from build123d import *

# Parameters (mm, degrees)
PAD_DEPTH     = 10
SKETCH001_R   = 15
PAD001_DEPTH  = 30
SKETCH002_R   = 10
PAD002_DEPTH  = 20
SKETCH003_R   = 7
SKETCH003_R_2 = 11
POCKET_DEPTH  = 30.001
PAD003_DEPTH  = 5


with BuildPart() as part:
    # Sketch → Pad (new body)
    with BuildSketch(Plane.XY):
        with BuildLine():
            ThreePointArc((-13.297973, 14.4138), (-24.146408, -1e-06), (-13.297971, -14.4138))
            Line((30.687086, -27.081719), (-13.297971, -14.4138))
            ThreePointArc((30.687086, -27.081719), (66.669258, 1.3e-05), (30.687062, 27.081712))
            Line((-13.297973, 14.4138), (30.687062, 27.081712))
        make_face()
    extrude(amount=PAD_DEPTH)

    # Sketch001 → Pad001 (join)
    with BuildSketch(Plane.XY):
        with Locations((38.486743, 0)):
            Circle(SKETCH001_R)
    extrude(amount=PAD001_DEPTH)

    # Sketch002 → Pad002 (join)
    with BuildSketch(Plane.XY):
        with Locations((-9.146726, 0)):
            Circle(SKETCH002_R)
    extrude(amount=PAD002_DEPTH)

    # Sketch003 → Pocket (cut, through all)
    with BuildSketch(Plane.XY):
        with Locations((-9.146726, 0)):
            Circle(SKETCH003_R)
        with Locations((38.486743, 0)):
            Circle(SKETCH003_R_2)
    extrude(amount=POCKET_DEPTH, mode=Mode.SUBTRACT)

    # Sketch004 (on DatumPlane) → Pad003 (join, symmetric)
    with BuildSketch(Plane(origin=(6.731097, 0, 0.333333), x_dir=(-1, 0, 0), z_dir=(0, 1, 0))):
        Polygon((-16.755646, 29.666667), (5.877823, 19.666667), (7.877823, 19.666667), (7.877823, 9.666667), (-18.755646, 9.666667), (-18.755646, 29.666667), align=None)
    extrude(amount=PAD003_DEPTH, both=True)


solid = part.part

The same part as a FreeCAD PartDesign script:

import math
import FreeCAD as App
import Part
import Sketcher
from FreeCAD import Vector
Q = App.Units.Quantity


def add_polygon(sketch, points):
    """Adds a closed chain of lines whose ends are joined by coincident constraints."""
    first, n = sketch.GeometryCount, len(points)
    for a, b in zip(points, points[1:] + points[:1]):
        sketch.addGeometry(Part.LineSegment(App.Vector(*a, 0), App.Vector(*b, 0)), False)
    for i in range(n):
        sketch.addConstraint(Sketcher.Constraint("Coincident", first + i, 2, first + (i + 1) % n, 1))

doc = App.newDocument("Part")
params = doc.addObject("Spreadsheet::Sheet", "Params")
for row, (alias, value) in enumerate([
    ("pad1_length", "10 mm"),
    ("sketch2_diameter", "30 mm"),
    ("pad2_length", "30 mm"),
    ("sketch3_diameter", "20 mm"),
    ("pad3_length", "20 mm"),
    ("sketch4_diameter", "14 mm"),
    ("sketch4_diameter2", "22 mm"),
    ("sketch5_width", "2 mm"),
    ("sketch5_height", "20 mm"),
    ("sketch5_height2", "10 mm"),
    ("pad4_length", "10 mm"),
], start=1):
    params.set(f"A{row}", alias)
    params.set(f"B{row}", "=" + value)
    params.setAlias(f"B{row}", alias)

body = doc.addObject("PartDesign::Body", "Body")

sketch1 = body.newObject("Sketcher::SketchObject", "Sketch")
sketch1.AttachmentSupport = (doc.getObject("XY_Plane"), [""])
sketch1.MapMode = "FlatFace"
sketch1.addGeometry([
    Part.ArcOfCircle(Part.Circle(Vector(-9.146725, 0, 0), Vector(0, 0, 1), 14.999683), math.radians(106.06667), math.radians(253.933338)),
    Part.LineSegment(Vector(-13.297971, -14.4138, 0), Vector(30.687086, -27.081719, 0)),
    Part.ArcOfCircle(Part.Circle(Vector(38.486743, 0, 0), Vector(0, 0, 1), 28.182515), math.radians(-106.066639), math.radians(106.06669)),
    Part.LineSegment(Vector(30.687062, 27.081712, 0), Vector(-13.297973, 14.4138, 0)),
], False)
sketch1.addConstraint([
    Sketcher.Constraint("Coincident", 0, 2, 1, 1),
    Sketcher.Constraint("Coincident", 1, 2, 2, 1),
    Sketcher.Constraint("Coincident", 2, 2, 3, 1),
    Sketcher.Constraint("Coincident", 3, 2, 0, 1),
    Sketcher.Constraint("PointOnObject", 0, 3, -1),
    Sketcher.Constraint("PointOnObject", 2, 3, -1),
    Sketcher.Constraint("Radius", 0, Q("14.999683 mm")),
    Sketcher.Constraint("Radius", 2, Q("28.182515 mm")),
    Sketcher.Constraint("DistanceY", 0, 2, -1, 1, Q("14.4138 mm")),
    Sketcher.Constraint("DistanceY", -1, 1, 3, 2, Q("14.4138 mm")),
    Sketcher.Constraint("Distance", 3, Q("45.77291 mm")),
    Sketcher.Constraint("DistanceX", 0, 2, -1, 1, Q("13.297971 mm")),
    Sketcher.Constraint("DistanceY", 1, 2, -1, 1, Q("27.081719 mm")),
    Sketcher.Constraint("DistanceY", -1, 1, 2, 2, Q("27.081712 mm")),
])
pad1 = body.newObject("PartDesign::Pad", "Pad")
pad1.Profile = sketch1
pad1.setExpression("Length", "Params.pad1_length")

sketch2 = body.newObject("Sketcher::SketchObject", "Sketch001")
sketch2.AttachmentSupport = (doc.getObject("XY_Plane"), [""])
sketch2.MapMode = "FlatFace"
sketch2.addGeometry(Part.Circle(Vector(38, 0, 0), Vector(0, 0, 1), 15), False)
sketch2.addConstraint([
    Sketcher.Constraint("PointOnObject", 0, 3, -1),
    Sketcher.Constraint("Diameter", 0, Q("30 mm")),
    Sketcher.Constraint("DistanceX", -1, 1, 0, 3, Q("38.486743 mm")),
])
sketch2.setExpression("Constraints[1]", "Params.sketch2_diameter")
pad2 = body.newObject("PartDesign::Pad", "Pad001")
pad2.Profile = sketch2
pad2.setExpression("Length", "Params.pad2_length")

sketch3 = body.newObject("Sketcher::SketchObject", "Sketch002")
sketch3.AttachmentSupport = (doc.getObject("XY_Plane"), [""])
sketch3.MapMode = "FlatFace"
sketch3.addGeometry(Part.Circle(Vector(-9, 0, 0), Vector(0, 0, 1), 10), False)
sketch3.addConstraint([
    Sketcher.Constraint("PointOnObject", 0, 3, -1),
    Sketcher.Constraint("Diameter", 0, Q("20 mm")),
    Sketcher.Constraint("DistanceX", 0, 3, -1, 1, Q("9.146726 mm")),
])
sketch3.setExpression("Constraints[1]", "Params.sketch3_diameter")
pad3 = body.newObject("PartDesign::Pad", "Pad002")
pad3.Profile = sketch3
pad3.setExpression("Length", "Params.pad3_length")

sketch4 = body.newObject("Sketcher::SketchObject", "Sketch003")
sketch4.AttachmentSupport = (doc.getObject("XY_Plane"), [""])
sketch4.MapMode = "FlatFace"
sketch4.addGeometry([
    Part.Circle(Vector(-9, 0, 0), Vector(0, 0, 1), 7),
    Part.Circle(Vector(38, 0, 0), Vector(0, 0, 1), 11),
], False)
sketch4.addConstraint([
    Sketcher.Constraint("PointOnObject", 0, 3, -1),
    Sketcher.Constraint("PointOnObject", 1, 3, -1),
    Sketcher.Constraint("Diameter", 0, Q("14 mm")),
    Sketcher.Constraint("Diameter", 1, Q("22 mm")),
    Sketcher.Constraint("DistanceX", 0, 3, 1, 3, Q("47.633469 mm")),
    Sketcher.Constraint("DistanceX", 0, 3, -1, 1, Q("9.146726 mm")),
])
sketch4.setExpression("Constraints[2]", "Params.sketch4_diameter")
sketch4.setExpression("Constraints[3]", "Params.sketch4_diameter2")
pocket1 = body.newObject("PartDesign::Pocket", "Pocket")
pocket1.Profile = sketch4
pocket1.Type = "ThroughAll"
pocket1.Reversed = True

sketch5 = body.newObject("Sketcher::SketchObject", "Sketch004")
sketch5.AttachmentSupport = (doc.getObject("XZ_Plane"), [""])
sketch5.MapMode = "FlatFace"
add_polygon(sketch5, [(0.9, 20), (23.5, 30), (25.5, 30), (25.5, 10), (-1.1, 10), (-1.1, 20)])
sketch5.addConstraint([
    Sketcher.Constraint("Horizontal", 1),
    Sketcher.Constraint("Vertical", 2),
    Sketcher.Constraint("Horizontal", 3),
    Sketcher.Constraint("Vertical", 4),
    Sketcher.Constraint("Horizontal", 5),
    Sketcher.Constraint("Equal", 1, 5),
    Sketcher.Constraint("DistanceX", 1, 1, 1, 2, Q("2 mm")),
    Sketcher.Constraint("DistanceY", 2, 2, 2, 1, Q("20 mm")),
    Sketcher.Constraint("DistanceY", 4, 1, 4, 2, Q("10 mm")),
    Sketcher.Constraint("DistanceY", -1, 1, 0, 2, Q("30 mm")),
    Sketcher.Constraint("DistanceX", 3, 2, 3, 1, Q("26.633469 mm")),
    Sketcher.Constraint("DistanceX", -1, 1, 0, 2, Q("23.486743 mm")),
])
sketch5.setExpression("Constraints[12]", "Params.sketch5_width")
sketch5.setExpression("Constraints[13]", "Params.sketch5_height")
sketch5.setExpression("Constraints[14]", "Params.sketch5_height2")
pad4 = body.newObject("PartDesign::Pad", "Pad003")
pad4.Profile = sketch5
pad4.setExpression("Length", "Params.pad4_length")
pad4.Midplane = True

doc.recompute()
